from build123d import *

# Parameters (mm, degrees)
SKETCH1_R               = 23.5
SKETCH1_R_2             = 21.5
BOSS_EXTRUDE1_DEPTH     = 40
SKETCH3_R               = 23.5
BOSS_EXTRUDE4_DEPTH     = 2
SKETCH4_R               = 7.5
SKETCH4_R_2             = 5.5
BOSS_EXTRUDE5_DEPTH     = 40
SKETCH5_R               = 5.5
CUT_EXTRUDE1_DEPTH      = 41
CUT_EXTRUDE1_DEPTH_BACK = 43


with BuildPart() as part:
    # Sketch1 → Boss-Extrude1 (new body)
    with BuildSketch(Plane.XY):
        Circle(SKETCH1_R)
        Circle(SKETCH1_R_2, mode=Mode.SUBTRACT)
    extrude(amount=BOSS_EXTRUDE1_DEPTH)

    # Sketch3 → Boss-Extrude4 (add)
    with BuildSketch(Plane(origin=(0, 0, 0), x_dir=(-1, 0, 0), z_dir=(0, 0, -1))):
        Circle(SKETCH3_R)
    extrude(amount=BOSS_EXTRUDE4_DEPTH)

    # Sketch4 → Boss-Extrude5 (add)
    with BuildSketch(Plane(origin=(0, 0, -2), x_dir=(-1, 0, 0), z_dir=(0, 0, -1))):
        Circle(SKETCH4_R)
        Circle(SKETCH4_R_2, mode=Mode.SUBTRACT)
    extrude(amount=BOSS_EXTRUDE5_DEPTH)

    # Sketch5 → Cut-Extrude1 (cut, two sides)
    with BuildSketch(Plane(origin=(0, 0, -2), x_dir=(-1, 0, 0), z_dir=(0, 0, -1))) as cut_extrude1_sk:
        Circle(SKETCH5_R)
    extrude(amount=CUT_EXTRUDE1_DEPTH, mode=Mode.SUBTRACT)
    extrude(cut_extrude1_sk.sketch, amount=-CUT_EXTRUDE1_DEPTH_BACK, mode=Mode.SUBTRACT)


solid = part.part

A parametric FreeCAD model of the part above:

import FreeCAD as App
import Part
import Sketcher
Q = App.Units.Quantity

doc = App.newDocument("Part")
params = doc.addObject("Spreadsheet::Sheet", "Params")
for row, (alias, value) in enumerate([
    ("sketch1_diameter", "47 mm"),
    ("sketch1_diameter2", "43 mm"),
    ("pad1_length", "40 mm"),
    ("sketch2_diameter", "47 mm"),
    ("pad2_length", "2 mm"),
    ("sketch3_diameter", "15 mm"),
    ("sketch3_diameter2", "11 mm"),
    ("pad3_length", "40 mm"),
    ("sketch4_diameter", "11 mm"),
], start=1):
    params.set(f"A{row}", alias)
    params.set(f"B{row}", "=" + value)
    params.setAlias(f"B{row}", alias)

body = doc.addObject("PartDesign::Body", "Body")

sketch1 = body.newObject("Sketcher::SketchObject", "Sketch")
sketch1.AttachmentSupport = (doc.getObject("XY_Plane"), [""])
sketch1.MapMode = "FlatFace"
sketch1.addGeometry([
    Part.Circle(App.Vector(0, 0, 0), App.Vector(0, 0, 1), 24),
    Part.Circle(App.Vector(0, 0, 0), App.Vector(0, 0, 1), 22),
], False)
sketch1.addConstraint([
    Sketcher.Constraint("Coincident", 0, 3, -1, 1),
    Sketcher.Constraint("Coincident", 1, 3, -1, 1),
    Sketcher.Constraint("Diameter", 0, Q("47 mm")),
    Sketcher.Constraint("Diameter", 1, Q("43 mm")),
])
sketch1.setExpression("Constraints[2]", "Params.sketch1_diameter")
sketch1.setExpression("Constraints[3]", "Params.sketch1_diameter2")
pad1 = body.newObject("PartDesign::Pad", "Pad")
pad1.Profile = sketch1
pad1.setExpression("Length", "Params.pad1_length")

sketch2 = body.newObject("Sketcher::SketchObject", "Sketch001")
sketch2.AttachmentSupport = (doc.getObject("XY_Plane"), [""])
sketch2.MapMode = "FlatFace"
sketch2.addGeometry(Part.Circle(App.Vector(0, 0, 0), App.Vector(0, 0, 1), 24), False)
sketch2.addConstraint([
    Sketcher.Constraint("Coincident", 0, 3, -1, 1),
    Sketcher.Constraint("Diameter", 0, Q("47 mm")),
])
sketch2.setExpression("Constraints[1]", "Params.sketch2_diameter")
pad2 = body.newObject("PartDesign::Pad", "Pad001")
pad2.Profile = sketch2
pad2.setExpression("Length", "Params.pad2_length")
pad2.Reversed = True

sketch3 = body.newObject("Sketcher::SketchObject", "Sketch002")
sketch3.AttachmentSupport = (doc.getObject("XY_Plane"), [""])
sketch3.MapMode = "FlatFace"
sketch3.AttachmentOffset = App.Placement(App.Vector(0, 0, -2), App.Rotation())
sketch3.addGeometry([
    Part.Circle(App.Vector(0, 0, 0), App.Vector(0, 0, 1), 8),
    Part.Circle(App.Vector(0, 0, 0), App.Vector(0, 0, 1), 6),
], False)
sketch3.addConstraint([
    Sketcher.Constraint("Coincident", 0, 3, -1, 1),
    Sketcher.Constraint("Coincident", 1, 3, -1, 1),
    Sketcher.Constraint("Diameter", 0, Q("15 mm")),
    Sketcher.Constraint("Diameter", 1, Q("11 mm")),
])
sketch3.setExpression("Constraints[2]", "Params.sketch3_diameter")
sketch3.setExpression("Constraints[3]", "Params.sketch3_diameter2")
pad3 = body.newObject("PartDesign::Pad", "Pad002")
pad3.Profile = sketch3
pad3.setExpression("Length", "Params.pad3_length")
pad3.Reversed = True

sketch4 = body.newObject("Sketcher::SketchObject", "Sketch003")
sketch4.AttachmentSupport = (doc.getObject("XY_Plane"), [""])
sketch4.MapMode = "FlatFace"
sketch4.AttachmentOffset = App.Placement(App.Vector(0, 0, -2), App.Rotation())
sketch4.addGeometry(Part.Circle(App.Vector(0, 0, 0), App.Vector(0, 0, 1), 6), False)
sketch4.addConstraint([
    Sketcher.Constraint("Coincident", 0, 3, -1, 1),
    Sketcher.Constraint("Diameter", 0, Q("11 mm")),
])
sketch4.setExpression("Constraints[1]", "Params.sketch4_diameter")
pocket1 = body.newObject("PartDesign::Pocket", "Pocket")
pocket1.Profile = sketch4
pocket1.Type = "ThroughAll"
pocket1.Midplane = True

doc.recompute()
